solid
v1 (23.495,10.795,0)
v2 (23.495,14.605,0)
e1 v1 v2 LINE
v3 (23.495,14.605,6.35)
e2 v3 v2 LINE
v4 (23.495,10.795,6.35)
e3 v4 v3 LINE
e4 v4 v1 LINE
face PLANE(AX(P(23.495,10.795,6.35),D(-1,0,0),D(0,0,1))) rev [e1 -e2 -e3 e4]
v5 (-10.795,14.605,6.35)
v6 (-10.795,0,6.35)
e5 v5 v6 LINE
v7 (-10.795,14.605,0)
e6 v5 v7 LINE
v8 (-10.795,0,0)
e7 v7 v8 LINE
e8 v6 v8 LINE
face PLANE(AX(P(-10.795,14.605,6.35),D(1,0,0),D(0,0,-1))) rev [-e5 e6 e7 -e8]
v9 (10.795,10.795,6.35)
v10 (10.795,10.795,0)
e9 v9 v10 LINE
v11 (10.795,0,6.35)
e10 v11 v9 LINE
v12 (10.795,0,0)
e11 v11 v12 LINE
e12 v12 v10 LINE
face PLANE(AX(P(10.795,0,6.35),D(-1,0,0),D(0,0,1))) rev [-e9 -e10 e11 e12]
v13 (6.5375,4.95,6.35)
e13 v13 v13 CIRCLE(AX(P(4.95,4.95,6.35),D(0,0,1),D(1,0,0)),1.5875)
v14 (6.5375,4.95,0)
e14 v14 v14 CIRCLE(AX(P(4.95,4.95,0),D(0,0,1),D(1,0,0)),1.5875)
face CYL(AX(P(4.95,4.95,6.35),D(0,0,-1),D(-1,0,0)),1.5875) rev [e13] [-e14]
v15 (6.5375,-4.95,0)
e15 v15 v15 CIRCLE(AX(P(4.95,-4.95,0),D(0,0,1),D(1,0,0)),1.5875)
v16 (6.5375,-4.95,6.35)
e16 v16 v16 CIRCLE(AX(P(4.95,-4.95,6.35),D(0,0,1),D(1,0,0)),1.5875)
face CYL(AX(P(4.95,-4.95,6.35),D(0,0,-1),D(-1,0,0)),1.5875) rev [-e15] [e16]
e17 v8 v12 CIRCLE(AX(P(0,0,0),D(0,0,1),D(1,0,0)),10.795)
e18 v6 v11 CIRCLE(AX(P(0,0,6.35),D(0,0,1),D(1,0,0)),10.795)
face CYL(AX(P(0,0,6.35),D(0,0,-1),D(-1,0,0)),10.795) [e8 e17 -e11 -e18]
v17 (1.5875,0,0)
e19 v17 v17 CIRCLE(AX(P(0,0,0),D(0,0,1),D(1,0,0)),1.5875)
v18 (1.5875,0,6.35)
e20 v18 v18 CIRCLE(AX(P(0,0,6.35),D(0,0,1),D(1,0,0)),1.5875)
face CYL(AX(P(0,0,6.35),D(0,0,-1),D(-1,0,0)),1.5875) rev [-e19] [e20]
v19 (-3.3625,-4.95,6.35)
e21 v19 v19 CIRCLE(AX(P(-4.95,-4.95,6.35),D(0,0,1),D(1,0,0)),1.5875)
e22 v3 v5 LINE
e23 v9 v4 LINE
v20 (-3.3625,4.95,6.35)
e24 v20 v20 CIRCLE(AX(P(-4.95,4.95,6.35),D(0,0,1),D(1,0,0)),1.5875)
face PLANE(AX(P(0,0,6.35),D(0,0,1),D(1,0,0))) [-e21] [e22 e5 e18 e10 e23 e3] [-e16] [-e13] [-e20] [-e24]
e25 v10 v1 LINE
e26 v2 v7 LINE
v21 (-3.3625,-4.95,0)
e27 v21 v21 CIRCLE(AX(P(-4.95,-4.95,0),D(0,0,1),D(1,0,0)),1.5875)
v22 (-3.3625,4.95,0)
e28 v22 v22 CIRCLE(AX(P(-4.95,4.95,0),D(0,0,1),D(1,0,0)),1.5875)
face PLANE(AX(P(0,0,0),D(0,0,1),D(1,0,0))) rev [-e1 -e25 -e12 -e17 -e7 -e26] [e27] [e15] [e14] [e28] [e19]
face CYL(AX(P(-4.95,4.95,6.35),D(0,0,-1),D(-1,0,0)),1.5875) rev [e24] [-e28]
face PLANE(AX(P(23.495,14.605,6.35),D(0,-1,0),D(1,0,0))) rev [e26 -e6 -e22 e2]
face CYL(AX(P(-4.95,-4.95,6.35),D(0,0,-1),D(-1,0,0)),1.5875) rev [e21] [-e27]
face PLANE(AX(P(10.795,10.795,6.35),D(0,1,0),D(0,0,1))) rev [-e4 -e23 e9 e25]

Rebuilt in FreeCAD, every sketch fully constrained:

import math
import FreeCAD as App
import Part
import Sketcher

V = App.Vector
Q = App.Units.Quantity

doc = App.newDocument("Part")
params = doc.addObject("Spreadsheet::Sheet", "Params")
for row, (alias, value) in enumerate([
    ("sketch1_diameter", "0.125 in"),
    ("sketch1_width", "0.5 in"),
    ("sketch1_radius", "0.425 in"),
    ("sketch1_height", "0.15 in"),
    ("sketch1_height2", "0.425 in"),
    ("pad1_length", "0.25 in"),
], start=1):
    params.set(f"A{row}", alias)
    params.set(f"B{row}", "=" + value)
    params.setAlias(f"B{row}", alias)

body = doc.addObject("PartDesign::Body", "Body")

# Sketch on XY plane
sketch1 = doc.addObject("Sketcher::SketchObject", "Sketch")
body.addObject(sketch1)
sketch1.AttachmentSupport = (doc.XY_Plane, [""])
sketch1.MapMode = "FlatFace"
sketch1.addGeometry(Part.LineSegment(V(10.8, 0, 0), V(10.8, 10.8, 0)), False)
sketch1.addGeometry(Part.LineSegment(V(10.8, 10.8, 0), V(23.5, 10.8, 0)), False)
sketch1.addGeometry(Part.LineSegment(V(23.5, 10.8, 0), V(23.5, 14.6, 0)), False)
sketch1.addGeometry(Part.LineSegment(V(23.5, 14.6, 0), V(-10.8, 14.6, 0)), False)
sketch1.addGeometry(Part.LineSegment(V(-10.8, 14.6, 0), V(-10.8, 0, 0)), False)
sketch1.addGeometry(Part.ArcOfCircle(Part.Circle(V(0, 0, 0), V(0, 0, 1), 10.8), math.radians(180), math.radians(360)), False)
sketch1.addGeometry(Part.Circle(V(-5, -5, 0), V(0, 0, 1), 1.6), False)
sketch1.addGeometry(Part.Circle(V(5, -5, 0), V(0, 0, 1), 1.6), False)
sketch1.addGeometry(Part.Circle(V(0, 0, 0), V(0, 0, 1), 1.6), False)
sketch1.addGeometry(Part.Circle(V(-5, 5, 0), V(0, 0, 1), 1.6), False)
sketch1.addGeometry(Part.Circle(V(5, 5, 0), V(0, 0, 1), 1.6), False)
sketch1.addConstraint(Sketcher.Constraint("Coincident", 0, 2, 1, 1))
sketch1.addConstraint(Sketcher.Constraint("Coincident", 1, 2, 2, 1))
sketch1.addConstraint(Sketcher.Constraint("Coincident", 2, 2, 3, 1))
sketch1.addConstraint(Sketcher.Constraint("Coincident", 3, 2, 4, 1))
sketch1.addConstraint(Sketcher.Constraint("Tangent", 4, 2, 5, 1))
sketch1.addConstraint(Sketcher.Constraint("Tangent", 5, 2, 0, 1))
sketch1.addConstraint(Sketcher.Constraint("Vertical", 0))
sketch1.addConstraint(Sketcher.Constraint("Horizontal", 1))
sketch1.addConstraint(Sketcher.Constraint("Vertical", 2))
sketch1.addConstraint(Sketcher.Constraint("Horizontal", 3))
sketch1.addConstraint(Sketcher.Constraint("Vertical", 4))
sketch1.addConstraint(Sketcher.Constraint("Coincident", 5, 3, -1, 1))
sketch1.addConstraint(Sketcher.Constraint("Coincident", 8, 3, -1, 1))
sketch1.addConstraint(Sketcher.Constraint("Equal", 6, 7))
sketch1.addConstraint(Sketcher.Constraint("Equal", 7, 8))
sketch1.addConstraint(Sketcher.Constraint("Equal", 8, 9))
sketch1.addConstraint(Sketcher.Constraint("Equal", 9, 10))
sketch1.addConstraint(Sketcher.Constraint("Symmetric", 7, 3, 9, 3, -1, 1))
sketch1.addConstraint(Sketcher.Constraint("Symmetric", 6, 3, 10, 3, -1, 1))
sketch1.addConstraint(Sketcher.Constraint("Symmetric", 6, 3, 7, 3, -2))
sketch1.addConstraint(Sketcher.Constraint("Diameter", 6, Q("0.125 in")))
sketch1.addConstraint(Sketcher.Constraint("DistanceX", 1, 1, 1, 2, Q("0.5 in")))
sketch1.addConstraint(Sketcher.Constraint("Radius", 5, Q("0.425 in")))
sketch1.addConstraint(Sketcher.Constraint("DistanceY", 2, 1, 2, 2, Q("0.15 in")))
sketch1.addConstraint(Sketcher.Constraint("DistanceY", 0, 1, 0, 2, Q("0.425 in")))
sketch1.addConstraint(Sketcher.Constraint("DistanceX", 6, 3, -1, 1, Q("4.95 mm")))
sketch1.addConstraint(Sketcher.Constraint("DistanceY", 6, 3, -1, 1, Q("4.95 mm")))
sketch1.setExpression("Constraints[20]", "Params.sketch1_diameter")
sketch1.setExpression("Constraints[21]", "Params.sketch1_width")
sketch1.setExpression("Constraints[22]", "Params.sketch1_radius")
sketch1.setExpression("Constraints[23]", "Params.sketch1_height")
sketch1.setExpression("Constraints[24]", "Params.sketch1_height2")
pad1 = doc.addObject("PartDesign::Pad", "Pad")
body.addObject(pad1)
pad1.Profile = sketch1
pad1.setExpression("Length", "Params.pad1_length")

doc.recompute()
